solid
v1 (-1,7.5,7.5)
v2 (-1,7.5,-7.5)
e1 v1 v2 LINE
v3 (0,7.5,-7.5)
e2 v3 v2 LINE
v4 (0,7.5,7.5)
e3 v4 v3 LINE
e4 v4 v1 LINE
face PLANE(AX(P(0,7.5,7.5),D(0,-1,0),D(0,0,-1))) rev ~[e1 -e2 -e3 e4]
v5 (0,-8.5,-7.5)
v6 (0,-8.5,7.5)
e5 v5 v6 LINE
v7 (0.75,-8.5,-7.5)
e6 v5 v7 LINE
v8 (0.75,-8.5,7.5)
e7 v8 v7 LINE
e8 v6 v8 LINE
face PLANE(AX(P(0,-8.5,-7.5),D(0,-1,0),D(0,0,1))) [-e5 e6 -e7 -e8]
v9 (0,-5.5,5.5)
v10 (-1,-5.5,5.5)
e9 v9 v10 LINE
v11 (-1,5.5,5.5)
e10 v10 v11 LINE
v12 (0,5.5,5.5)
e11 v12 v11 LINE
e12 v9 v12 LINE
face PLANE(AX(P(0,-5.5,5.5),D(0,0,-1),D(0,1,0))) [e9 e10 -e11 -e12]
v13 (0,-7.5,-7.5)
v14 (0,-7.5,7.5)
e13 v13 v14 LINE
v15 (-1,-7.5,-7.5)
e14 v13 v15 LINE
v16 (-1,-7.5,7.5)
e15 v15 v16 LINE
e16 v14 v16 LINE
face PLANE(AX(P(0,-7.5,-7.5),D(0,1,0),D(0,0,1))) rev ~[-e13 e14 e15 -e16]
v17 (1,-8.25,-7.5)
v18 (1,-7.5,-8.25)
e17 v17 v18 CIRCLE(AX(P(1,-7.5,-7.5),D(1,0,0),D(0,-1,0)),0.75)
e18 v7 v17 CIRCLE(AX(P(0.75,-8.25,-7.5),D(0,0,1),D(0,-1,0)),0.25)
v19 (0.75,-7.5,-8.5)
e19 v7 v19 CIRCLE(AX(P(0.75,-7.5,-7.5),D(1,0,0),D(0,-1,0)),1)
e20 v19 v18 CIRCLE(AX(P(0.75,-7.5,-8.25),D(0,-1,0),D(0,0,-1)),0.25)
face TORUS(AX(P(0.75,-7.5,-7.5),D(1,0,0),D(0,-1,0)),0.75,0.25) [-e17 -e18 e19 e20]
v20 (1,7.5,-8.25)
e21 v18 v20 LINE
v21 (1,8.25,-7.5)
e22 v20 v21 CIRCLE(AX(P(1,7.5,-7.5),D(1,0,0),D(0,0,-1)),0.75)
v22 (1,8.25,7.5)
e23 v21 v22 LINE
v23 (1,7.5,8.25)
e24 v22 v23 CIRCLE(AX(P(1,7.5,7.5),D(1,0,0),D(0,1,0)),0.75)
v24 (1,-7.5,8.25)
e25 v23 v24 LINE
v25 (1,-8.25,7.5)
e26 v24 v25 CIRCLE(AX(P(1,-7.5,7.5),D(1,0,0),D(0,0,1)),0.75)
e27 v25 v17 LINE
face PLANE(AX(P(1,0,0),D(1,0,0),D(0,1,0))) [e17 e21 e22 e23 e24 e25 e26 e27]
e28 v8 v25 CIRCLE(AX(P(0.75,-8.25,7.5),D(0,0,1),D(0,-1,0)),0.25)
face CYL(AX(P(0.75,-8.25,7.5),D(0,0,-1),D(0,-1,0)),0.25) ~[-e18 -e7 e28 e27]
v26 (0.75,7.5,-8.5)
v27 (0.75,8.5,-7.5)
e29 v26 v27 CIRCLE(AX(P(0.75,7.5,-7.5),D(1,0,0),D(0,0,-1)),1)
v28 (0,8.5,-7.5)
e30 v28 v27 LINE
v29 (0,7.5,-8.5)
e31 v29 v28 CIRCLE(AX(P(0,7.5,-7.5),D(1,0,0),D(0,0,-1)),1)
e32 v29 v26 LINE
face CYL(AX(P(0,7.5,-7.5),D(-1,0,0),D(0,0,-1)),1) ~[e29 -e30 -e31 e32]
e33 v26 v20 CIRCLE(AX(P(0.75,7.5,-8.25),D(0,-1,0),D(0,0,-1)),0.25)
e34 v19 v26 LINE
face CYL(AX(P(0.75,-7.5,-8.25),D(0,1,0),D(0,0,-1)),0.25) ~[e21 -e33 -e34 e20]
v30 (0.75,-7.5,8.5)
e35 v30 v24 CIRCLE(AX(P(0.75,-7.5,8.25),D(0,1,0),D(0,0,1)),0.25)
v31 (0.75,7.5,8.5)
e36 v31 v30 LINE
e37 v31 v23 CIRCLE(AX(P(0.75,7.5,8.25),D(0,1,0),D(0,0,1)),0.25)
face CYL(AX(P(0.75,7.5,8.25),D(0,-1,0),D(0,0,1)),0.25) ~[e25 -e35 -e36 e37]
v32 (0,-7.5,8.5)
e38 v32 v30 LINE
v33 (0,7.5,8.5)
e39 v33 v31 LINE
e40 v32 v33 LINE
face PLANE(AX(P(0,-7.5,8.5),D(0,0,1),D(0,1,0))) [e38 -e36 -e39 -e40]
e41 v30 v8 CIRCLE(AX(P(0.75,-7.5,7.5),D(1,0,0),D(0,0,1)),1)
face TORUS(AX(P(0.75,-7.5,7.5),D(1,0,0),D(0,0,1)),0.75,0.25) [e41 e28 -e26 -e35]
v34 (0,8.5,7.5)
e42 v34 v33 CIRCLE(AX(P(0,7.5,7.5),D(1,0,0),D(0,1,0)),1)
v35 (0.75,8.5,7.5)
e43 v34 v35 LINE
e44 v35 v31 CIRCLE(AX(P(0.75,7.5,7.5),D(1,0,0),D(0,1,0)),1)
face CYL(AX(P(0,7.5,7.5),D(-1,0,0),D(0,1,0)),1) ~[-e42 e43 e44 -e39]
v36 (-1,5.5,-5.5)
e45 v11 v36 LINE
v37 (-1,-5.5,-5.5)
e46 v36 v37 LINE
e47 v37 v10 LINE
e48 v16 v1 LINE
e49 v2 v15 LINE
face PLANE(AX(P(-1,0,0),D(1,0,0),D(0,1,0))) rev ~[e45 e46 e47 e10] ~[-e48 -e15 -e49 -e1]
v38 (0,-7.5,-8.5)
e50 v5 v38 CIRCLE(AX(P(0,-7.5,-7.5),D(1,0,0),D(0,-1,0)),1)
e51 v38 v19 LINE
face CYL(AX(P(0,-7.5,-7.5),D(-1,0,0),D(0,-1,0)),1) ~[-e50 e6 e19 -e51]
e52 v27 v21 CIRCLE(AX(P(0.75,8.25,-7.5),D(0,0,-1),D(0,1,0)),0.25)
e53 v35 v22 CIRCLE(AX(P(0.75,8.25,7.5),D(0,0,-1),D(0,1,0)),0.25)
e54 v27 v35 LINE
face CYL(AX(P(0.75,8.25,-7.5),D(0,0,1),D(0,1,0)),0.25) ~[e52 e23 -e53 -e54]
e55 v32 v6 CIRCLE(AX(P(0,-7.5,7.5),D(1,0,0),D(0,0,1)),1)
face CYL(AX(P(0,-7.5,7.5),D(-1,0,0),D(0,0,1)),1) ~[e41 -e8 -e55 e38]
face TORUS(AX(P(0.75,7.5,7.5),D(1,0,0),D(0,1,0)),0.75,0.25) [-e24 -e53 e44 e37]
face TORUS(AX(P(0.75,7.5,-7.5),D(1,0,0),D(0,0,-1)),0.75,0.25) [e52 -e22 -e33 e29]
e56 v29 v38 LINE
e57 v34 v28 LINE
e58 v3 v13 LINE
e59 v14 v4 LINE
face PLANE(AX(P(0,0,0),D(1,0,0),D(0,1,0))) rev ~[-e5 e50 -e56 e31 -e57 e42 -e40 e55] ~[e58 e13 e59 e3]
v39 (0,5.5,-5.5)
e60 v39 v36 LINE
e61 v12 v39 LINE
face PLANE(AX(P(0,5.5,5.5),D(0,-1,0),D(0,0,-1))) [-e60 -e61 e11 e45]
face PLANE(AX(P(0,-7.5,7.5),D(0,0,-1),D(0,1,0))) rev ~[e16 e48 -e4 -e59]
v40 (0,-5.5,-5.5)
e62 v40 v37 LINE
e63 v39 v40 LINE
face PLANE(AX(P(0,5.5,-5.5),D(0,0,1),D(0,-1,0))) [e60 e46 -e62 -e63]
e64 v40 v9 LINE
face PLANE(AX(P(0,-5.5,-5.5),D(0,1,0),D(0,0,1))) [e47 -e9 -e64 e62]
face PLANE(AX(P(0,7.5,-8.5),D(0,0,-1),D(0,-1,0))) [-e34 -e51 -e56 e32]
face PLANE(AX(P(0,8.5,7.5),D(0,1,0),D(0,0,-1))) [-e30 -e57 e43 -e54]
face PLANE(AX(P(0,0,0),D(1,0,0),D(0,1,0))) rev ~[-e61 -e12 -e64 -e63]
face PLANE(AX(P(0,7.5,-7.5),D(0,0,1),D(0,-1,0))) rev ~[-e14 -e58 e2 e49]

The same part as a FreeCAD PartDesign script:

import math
import FreeCAD as App
import Part
import Sketcher

V = App.Vector
Q = App.Units.Quantity


def edges_at(feature, points):
    """Names of the edges that pass closest to the given points."""
    edges = feature.Shape.Edges
    near = lambda p: min(range(len(edges)), key=lambda i: edges[i].distToShape(Part.Vertex(*p))[0])
    return sorted({f"Edge{near(p) + 1}" for p in points})


def add_polygon(sketch, points):
    """Adds a closed chain of lines whose ends are joined by coincident constraints."""
    first, n = sketch.GeometryCount, len(points)
    for a, b in zip(points, points[1:] + points[:1]):
        sketch.addGeometry(Part.LineSegment(App.Vector(*a, 0), App.Vector(*b, 0)), False)
    for i in range(n):
        sketch.addConstraint(Sketcher.Constraint("Coincident", first + i, 2, first + (i + 1) % n, 1))

doc = App.newDocument("Part")
body = doc.addObject("PartDesign::Body", "Body")

# Sketch on YZ plane
sketch1 = body.newObject("Sketcher::SketchObject", "Sketch")
sketch1.AttachmentSupport = (doc.getObject("YZ_Plane"), [""])
sketch1.MapMode = "FlatFace"
sketch1.addGeometry(Part.LineSegment(V(7.5, 8.5, 0), V(-7.5, 8.5, 0)), False)
sketch1.addGeometry(Part.ArcOfCircle(Part.Circle(V(-7.5, 7.5, 0), V(0, 0, 1), 1), math.radians(90), math.radians(180)), False)
sketch1.addGeometry(Part.LineSegment(V(-8.5, 7.5, 0), V(-8.5, -7.5, 0)), False)
sketch1.addGeometry(Part.ArcOfCircle(Part.Circle(V(-7.5, -7.5, 0), V(0, 0, 1), 1), math.radians(180), math.radians(270)), False)
sketch1.addGeometry(Part.LineSegment(V(-7.5, -8.5, 0), V(7.5, -8.5, 0)), False)
sketch1.addGeometry(Part.ArcOfCircle(Part.Circle(V(7.5, -7.5, 0), V(0, 0, 1), 1), math.radians(-90), math.radians(0)), False)
sketch1.addGeometry(Part.LineSegment(V(8.5, -7.5, 0), V(8.5, 7.5, 0)), False)
sketch1.addGeometry(Part.ArcOfCircle(Part.Circle(V(7.5, 7.5, 0), V(0, 0, 1), 1), math.radians(0), math.radians(90)), False)
sketch1.addConstraint(Sketcher.Constraint("Tangent", 0, 2, 1, 1))
sketch1.addConstraint(Sketcher.Constraint("Tangent", 1, 2, 2, 1))
sketch1.addConstraint(Sketcher.Constraint("Tangent", 2, 2, 3, 1))
sketch1.addConstraint(Sketcher.Constraint("Tangent", 3, 2, 4, 1))
sketch1.addConstraint(Sketcher.Constraint("Tangent", 4, 2, 5, 1))
sketch1.addConstraint(Sketcher.Constraint("Tangent", 5, 2, 6, 1))
sketch1.addConstraint(Sketcher.Constraint("Tangent", 6, 2, 7, 1))
sketch1.addConstraint(Sketcher.Constraint("Tangent", 7, 2, 0, 1))
sketch1.addConstraint(Sketcher.Constraint("Horizontal", 0))
sketch1.addConstraint(Sketcher.Constraint("Vertical", 2))
sketch1.addConstraint(Sketcher.Constraint("Horizontal", 4))
sketch1.addConstraint(Sketcher.Constraint("Vertical", 6))
sketch1.addConstraint(Sketcher.Constraint("Equal", 1, 3))
sketch1.addConstraint(Sketcher.Constraint("Equal", 3, 5))
sketch1.addConstraint(Sketcher.Constraint("Equal", 5, 7))
sketch1.addConstraint(Sketcher.Constraint("Symmetric", 1, 3, 5, 3, -1, 1))
sketch1.addConstraint(Sketcher.Constraint("Equal", 4, 2))
sketch1.addConstraint(Sketcher.Constraint("Radius", 1, Q("1 mm")))
sketch1.addConstraint(Sketcher.Constraint("DistanceX", 0, 2, 0, 1, Q("15 mm")))
pad1 = body.newObject("PartDesign::Pad", "Pad")
pad1.Profile = sketch1
pad1.Length = 1

# Sketch on YZ plane
sketch2 = body.newObject("Sketcher::SketchObject", "Sketch001")
sketch2.AttachmentSupport = (doc.getObject("YZ_Plane"), [""])
sketch2.MapMode = "FlatFace"
add_polygon(sketch2, [(8, 8), (-8, 8), (-8, -8), (8, -8)])  # lines 0-3
add_polygon(sketch2, [(-6, -6), (-6, 6), (6, 6), (6, -6)])  # lines 4-7
sketch2.addConstraint(Sketcher.Constraint("Horizontal", 0))
sketch2.addConstraint(Sketcher.Constraint("Vertical", 1))
sketch2.addConstraint(Sketcher.Constraint("Horizontal", 2))
sketch2.addConstraint(Sketcher.Constraint("Vertical", 3))
sketch2.addConstraint(Sketcher.Constraint("Vertical", 4))
sketch2.addConstraint(Sketcher.Constraint("Horizontal", 5))
sketch2.addConstraint(Sketcher.Constraint("Vertical", 6))
sketch2.addConstraint(Sketcher.Constraint("Horizontal", 7))
sketch2.addConstraint(Sketcher.Constraint("Symmetric", 0, 2, 2, 2, -1, 1))
sketch2.addConstraint(Sketcher.Constraint("Symmetric", 4, 2, 6, 2, -1, 1))
sketch2.addConstraint(Sketcher.Constraint("Equal", 2, 1))
sketch2.addConstraint(Sketcher.Constraint("Equal", 7, 4))
sketch2.addConstraint(Sketcher.Constraint("DistanceX", 0, 2, 0, 1, Q("15 mm")))
sketch2.addConstraint(Sketcher.Constraint("DistanceX", 5, 1, 5, 2, Q("11 mm")))
pad2 = body.newObject("PartDesign::Pad", "Pad001")
pad2.Profile = sketch2
pad2.Length = 1
pad2.Reversed = True
doc.recompute()

fillet = body.newObject("PartDesign::Fillet", "Fillet")
fillet.Base = (pad2, edges_at(pad2, [
    (1, 8.207, 8.207),
    (1, 0, 8.5),
    (1, -8.207, 8.207),
    (1, -8.5, 0),
    (1, -8.207, -8.207),
    (1, 0, -8.5),
    (1, 8.207, -8.207),
    (1, 8.5, 0),
]))
fillet.Radius = 0.25

doc.recompute()
